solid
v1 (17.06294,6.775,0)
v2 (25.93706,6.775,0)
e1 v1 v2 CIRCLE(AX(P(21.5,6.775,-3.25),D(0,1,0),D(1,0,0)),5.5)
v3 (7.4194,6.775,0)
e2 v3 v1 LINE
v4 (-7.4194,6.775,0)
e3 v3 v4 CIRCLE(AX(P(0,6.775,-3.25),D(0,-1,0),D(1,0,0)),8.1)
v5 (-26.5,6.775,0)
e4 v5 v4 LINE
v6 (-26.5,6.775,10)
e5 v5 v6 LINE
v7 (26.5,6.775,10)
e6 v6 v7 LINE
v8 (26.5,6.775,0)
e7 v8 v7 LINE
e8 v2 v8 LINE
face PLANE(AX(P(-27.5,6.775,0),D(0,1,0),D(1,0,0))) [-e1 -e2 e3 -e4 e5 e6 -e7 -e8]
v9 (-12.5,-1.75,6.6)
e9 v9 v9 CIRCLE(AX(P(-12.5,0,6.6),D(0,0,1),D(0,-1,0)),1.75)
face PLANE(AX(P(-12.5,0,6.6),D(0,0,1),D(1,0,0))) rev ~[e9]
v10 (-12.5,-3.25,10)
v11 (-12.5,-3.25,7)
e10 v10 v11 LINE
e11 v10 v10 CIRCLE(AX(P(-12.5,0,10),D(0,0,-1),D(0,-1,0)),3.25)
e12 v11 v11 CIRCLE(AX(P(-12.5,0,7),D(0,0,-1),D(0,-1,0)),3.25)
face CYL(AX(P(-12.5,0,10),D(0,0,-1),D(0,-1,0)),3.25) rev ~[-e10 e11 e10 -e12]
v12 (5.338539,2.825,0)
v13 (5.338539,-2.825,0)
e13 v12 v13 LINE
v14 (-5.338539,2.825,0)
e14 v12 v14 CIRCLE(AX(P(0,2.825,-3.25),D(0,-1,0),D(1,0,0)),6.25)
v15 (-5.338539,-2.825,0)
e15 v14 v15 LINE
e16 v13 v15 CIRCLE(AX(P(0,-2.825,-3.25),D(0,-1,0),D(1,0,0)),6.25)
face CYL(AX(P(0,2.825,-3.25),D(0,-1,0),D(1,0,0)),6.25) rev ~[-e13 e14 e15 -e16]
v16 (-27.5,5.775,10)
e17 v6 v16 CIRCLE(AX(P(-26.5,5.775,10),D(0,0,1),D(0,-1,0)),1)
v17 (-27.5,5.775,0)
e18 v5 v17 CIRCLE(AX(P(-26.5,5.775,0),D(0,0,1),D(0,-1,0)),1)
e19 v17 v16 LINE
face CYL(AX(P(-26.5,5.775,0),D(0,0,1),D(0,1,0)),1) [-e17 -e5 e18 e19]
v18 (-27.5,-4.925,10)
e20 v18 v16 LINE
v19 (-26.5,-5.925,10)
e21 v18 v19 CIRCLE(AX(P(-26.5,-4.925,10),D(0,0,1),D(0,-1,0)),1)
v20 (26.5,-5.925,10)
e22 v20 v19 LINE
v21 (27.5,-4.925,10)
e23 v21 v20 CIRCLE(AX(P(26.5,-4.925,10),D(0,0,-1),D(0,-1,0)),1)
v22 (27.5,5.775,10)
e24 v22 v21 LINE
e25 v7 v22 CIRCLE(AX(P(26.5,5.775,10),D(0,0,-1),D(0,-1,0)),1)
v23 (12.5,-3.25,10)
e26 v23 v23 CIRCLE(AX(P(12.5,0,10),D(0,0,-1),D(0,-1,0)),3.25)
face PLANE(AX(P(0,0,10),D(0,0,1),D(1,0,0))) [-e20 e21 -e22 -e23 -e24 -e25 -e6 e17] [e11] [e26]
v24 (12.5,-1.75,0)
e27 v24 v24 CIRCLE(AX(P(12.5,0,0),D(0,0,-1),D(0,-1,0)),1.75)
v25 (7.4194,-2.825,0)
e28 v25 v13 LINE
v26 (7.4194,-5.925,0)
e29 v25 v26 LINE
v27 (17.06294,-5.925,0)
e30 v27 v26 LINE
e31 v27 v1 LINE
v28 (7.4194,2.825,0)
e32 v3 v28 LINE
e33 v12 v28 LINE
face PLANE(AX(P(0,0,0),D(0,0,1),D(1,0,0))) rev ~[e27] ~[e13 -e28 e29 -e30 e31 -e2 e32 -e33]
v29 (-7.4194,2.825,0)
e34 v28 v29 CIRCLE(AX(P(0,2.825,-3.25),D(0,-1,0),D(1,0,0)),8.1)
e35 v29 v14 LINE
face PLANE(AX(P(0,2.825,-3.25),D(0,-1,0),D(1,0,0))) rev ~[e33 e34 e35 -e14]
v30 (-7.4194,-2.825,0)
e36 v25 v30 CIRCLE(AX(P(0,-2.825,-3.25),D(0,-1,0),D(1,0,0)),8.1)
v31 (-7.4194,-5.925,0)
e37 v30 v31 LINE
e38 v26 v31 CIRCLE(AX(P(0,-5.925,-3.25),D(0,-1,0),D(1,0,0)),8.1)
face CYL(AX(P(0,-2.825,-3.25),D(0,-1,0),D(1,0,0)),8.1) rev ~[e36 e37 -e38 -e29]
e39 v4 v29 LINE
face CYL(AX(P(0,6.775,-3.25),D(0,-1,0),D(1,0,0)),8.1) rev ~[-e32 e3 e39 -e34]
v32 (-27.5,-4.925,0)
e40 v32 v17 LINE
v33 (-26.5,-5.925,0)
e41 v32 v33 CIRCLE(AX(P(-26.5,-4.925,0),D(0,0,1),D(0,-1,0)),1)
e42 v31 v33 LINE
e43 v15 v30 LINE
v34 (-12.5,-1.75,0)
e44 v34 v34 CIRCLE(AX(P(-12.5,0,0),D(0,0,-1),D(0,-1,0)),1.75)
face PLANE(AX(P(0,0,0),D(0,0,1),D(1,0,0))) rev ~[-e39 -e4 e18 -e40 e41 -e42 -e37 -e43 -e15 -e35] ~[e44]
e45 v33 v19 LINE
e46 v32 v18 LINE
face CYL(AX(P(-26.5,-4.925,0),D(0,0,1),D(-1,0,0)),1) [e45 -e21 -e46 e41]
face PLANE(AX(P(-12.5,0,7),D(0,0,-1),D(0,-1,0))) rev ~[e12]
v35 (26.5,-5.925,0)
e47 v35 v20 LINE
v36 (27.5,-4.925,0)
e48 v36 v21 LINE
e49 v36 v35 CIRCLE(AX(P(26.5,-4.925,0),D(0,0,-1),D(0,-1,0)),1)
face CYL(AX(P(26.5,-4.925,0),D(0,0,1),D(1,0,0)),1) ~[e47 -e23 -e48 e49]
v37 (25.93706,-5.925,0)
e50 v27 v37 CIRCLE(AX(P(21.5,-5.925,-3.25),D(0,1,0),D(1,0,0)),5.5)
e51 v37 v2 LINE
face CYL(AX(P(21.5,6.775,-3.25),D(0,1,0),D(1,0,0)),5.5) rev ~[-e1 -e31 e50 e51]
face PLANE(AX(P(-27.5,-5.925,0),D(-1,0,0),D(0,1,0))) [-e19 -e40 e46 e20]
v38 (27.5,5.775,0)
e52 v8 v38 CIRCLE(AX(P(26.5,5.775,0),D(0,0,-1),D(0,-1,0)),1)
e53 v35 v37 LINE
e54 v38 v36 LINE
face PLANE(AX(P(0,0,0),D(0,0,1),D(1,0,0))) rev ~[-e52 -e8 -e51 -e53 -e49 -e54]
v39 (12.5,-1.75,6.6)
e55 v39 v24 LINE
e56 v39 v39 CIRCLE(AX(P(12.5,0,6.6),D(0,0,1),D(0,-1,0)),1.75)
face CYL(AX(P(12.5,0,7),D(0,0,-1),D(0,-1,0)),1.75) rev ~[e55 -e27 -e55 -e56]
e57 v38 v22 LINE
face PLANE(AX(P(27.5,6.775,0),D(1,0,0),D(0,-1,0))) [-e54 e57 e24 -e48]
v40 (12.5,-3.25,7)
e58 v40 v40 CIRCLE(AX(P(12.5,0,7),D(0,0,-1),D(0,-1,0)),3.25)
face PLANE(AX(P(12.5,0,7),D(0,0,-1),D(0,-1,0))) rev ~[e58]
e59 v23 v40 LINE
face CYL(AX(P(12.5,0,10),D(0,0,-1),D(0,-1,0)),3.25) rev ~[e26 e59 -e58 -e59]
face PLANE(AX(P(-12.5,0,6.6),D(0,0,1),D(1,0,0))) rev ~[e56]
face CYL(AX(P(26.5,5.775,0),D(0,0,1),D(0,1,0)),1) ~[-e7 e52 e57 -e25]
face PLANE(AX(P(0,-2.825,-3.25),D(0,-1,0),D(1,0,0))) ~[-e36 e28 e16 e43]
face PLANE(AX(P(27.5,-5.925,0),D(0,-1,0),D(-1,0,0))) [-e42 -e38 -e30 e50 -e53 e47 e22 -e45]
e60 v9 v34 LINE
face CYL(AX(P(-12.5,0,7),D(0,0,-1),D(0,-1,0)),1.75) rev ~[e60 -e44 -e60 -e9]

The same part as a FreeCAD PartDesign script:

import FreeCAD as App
import Part
import Sketcher
from FreeCAD import Vector
Q = App.Units.Quantity


def edges_at(feature, points):
    """Names of the edges that pass closest to the given points."""
    edges = feature.Shape.Edges
    near = lambda p: min(range(len(edges)), key=lambda i: edges[i].distToShape(Part.Vertex(*p))[0])
    return sorted({f"Edge{near(p) + 1}" for p in points})


def add_polygon(sketch, points):
    """Adds a closed chain of lines whose ends are joined by coincident constraints."""
    first, n = sketch.GeometryCount, len(points)
    for a, b in zip(points, points[1:] + points[:1]):
        sketch.addGeometry(Part.LineSegment(App.Vector(*a, 0), App.Vector(*b, 0)), False)
    for i in range(n):
        sketch.addConstraint(Sketcher.Constraint("Coincident", first + i, 2, first + (i + 1) % n, 1))

doc = App.newDocument("Part")
body = doc.addObject("PartDesign::Body", "Body")

# Sketch on XY plane
sketch1 = body.newObject("Sketcher::SketchObject", "Sketch")
sketch1.AttachmentSupport = (doc.getObject("XY_Plane"), [""])
sketch1.MapMode = "FlatFace"
add_polygon(sketch1, [(28, 7), (-28, 7), (-28, -6), (28, -6)])  # lines 0-3
sketch1.addConstraint(Sketcher.Constraint("Horizontal", 0))
sketch1.addConstraint(Sketcher.Constraint("Vertical", 1))
sketch1.addConstraint(Sketcher.Constraint("Horizontal", 2))
sketch1.addConstraint(Sketcher.Constraint("Vertical", 3))
sketch1.addConstraint(Sketcher.Constraint("DistanceX", 0, 2, -1, 1, Q("27.5 mm")))
sketch1.addConstraint(Sketcher.Constraint("DistanceX", -1, 1, 2, 2, Q("27.5 mm")))
sketch1.addConstraint(Sketcher.Constraint("DistanceY", 1, 2, 1, 1, Q("12.7 mm")))
sketch1.addConstraint(Sketcher.Constraint("DistanceY", -1, 1, 0, 2, Q("6.775 mm")))
pad1 = body.newObject("PartDesign::Pad", "Pad")
pad1.Profile = sketch1
pad1.Length = 10

# Sketch on XY plane
sketch2 = body.newObject("Sketcher::SketchObject", "Sketch001")
sketch2.AttachmentSupport = (doc.getObject("XY_Plane"), [""])
sketch2.MapMode = "FlatFace"
sketch2.AttachmentOffset = App.Placement(Vector(0, 0, -3.25), App.Rotation())
add_polygon(sketch2, [(0, -5.9), (0, 6.8), (8.1, 6.8), (8.1, 2.8), (6.2, 2.8), (6.2, -2.8), (8.1, -2.8), (8.1, -5.9)])  # lines 0-7
sketch2.addConstraint(Sketcher.Constraint("Vertical", 0))
sketch2.addConstraint(Sketcher.Constraint("Horizontal", 1))
sketch2.addConstraint(Sketcher.Constraint("Vertical", 2))
sketch2.addConstraint(Sketcher.Constraint("Horizontal", 3))
sketch2.addConstraint(Sketcher.Constraint("Vertical", 4))
sketch2.addConstraint(Sketcher.Constraint("Horizontal", 5))
sketch2.addConstraint(Sketcher.Constraint("Vertical", 6))
sketch2.addConstraint(Sketcher.Constraint("Horizontal", 7))
sketch2.addConstraint(Sketcher.Constraint("Symmetric", 2, 2, 5, 2, -1))
sketch2.addConstraint(Sketcher.Constraint("PointOnObject", 0, 2, -2))
sketch2.addConstraint(Sketcher.Constraint("DistanceX", 1, 1, 1, 2, Q("8.1 mm")))
sketch2.addConstraint(Sketcher.Constraint("DistanceY", 6, 2, 6, 1, Q("3.1 mm")))
sketch2.addConstraint(Sketcher.Constraint("DistanceY", 2, 2, 2, 1, Q("3.95 mm")))
sketch2.addConstraint(Sketcher.Constraint("DistanceX", -1, 1, 3, 2, Q("6.25 mm")))
sketch2.addConstraint(Sketcher.Constraint("DistanceY", 0, 1, 0, 2, Q("12.7 mm")))
groove = body.newObject("PartDesign::Groove", "Groove")
groove.Profile = sketch2
groove.ReferenceAxis = (sketch2, ["V_Axis"])
groove.Angle = 180
groove.Reversed = True

# Sketch on XY plane
sketch3 = body.newObject("Sketcher::SketchObject", "Sketch002")
sketch3.AttachmentSupport = (doc.getObject("XY_Plane"), [""])
sketch3.MapMode = "FlatFace"
sketch3.AttachmentOffset = App.Placement(Vector(0, 0, 10), App.Rotation())
sketch3.addGeometry(Part.Circle(Vector(-12.5, 0, 0), Vector(0, 0, 1), 1.8), False)
sketch3.addGeometry(Part.Circle(Vector(12.5, 0, 0), Vector(0, 0, 1), 1.8), False)
sketch3.addConstraint(Sketcher.Constraint("Equal", 0, 1))
sketch3.addConstraint(Sketcher.Constraint("Symmetric", 0, 3, 1, 3, -1, 1))
sketch3.addConstraint(Sketcher.Constraint("PointOnObject", 0, 3, -1))
sketch3.addConstraint(Sketcher.Constraint("Diameter", 0, Q("3.5 mm")))
sketch3.addConstraint(Sketcher.Constraint("DistanceX", 0, 3, 1, 3, Q("25 mm")))
doc.recompute()
hole = body.newObject("PartDesign::Hole", "Hole")
hole.Profile = sketch3
hole.ThreadType = "None"
hole.Diameter = 3.5
hole.DepthType = "ThroughAll"
hole.HoleCutType = "Counterbore"
hole.HoleCutDiameter = 6.5
hole.HoleCutDepth = 3

# Sketch on XZ plane
sketch4 = body.newObject("Sketcher::SketchObject", "Sketch003")
sketch4.AttachmentSupport = (doc.getObject("XZ_Plane"), [""])
sketch4.MapMode = "FlatFace"
sketch4.AttachmentOffset = App.Placement(Vector(0, 0, -6.775), App.Rotation())
sketch4.addGeometry(Part.Circle(Vector(22, -3, 0), Vector(0, 0, 1), 6), False)
sketch4.addConstraint(Sketcher.Constraint("Diameter", 0, Q("11 mm")))
sketch4.addConstraint(Sketcher.Constraint("DistanceX", -1, 1, 0, 3, Q("21.5 mm")))
sketch4.addConstraint(Sketcher.Constraint("DistanceY", 0, 3, -1, 1, Q("3.25 mm")))
pocket1 = body.newObject("PartDesign::Pocket", "Pocket")
pocket1.Profile = sketch4
pocket1.Type = "ThroughAll"
pocket1.Reversed = True

# Sketch on XY plane
sketch5 = body.newObject("Sketcher::SketchObject", "Sketch004")
sketch5.AttachmentSupport = (doc.getObject("XY_Plane"), [""])
sketch5.MapMode = "FlatFace"
sketch5.AttachmentOffset = App.Placement(Vector(0, 0, 7), App.Rotation())
sketch5.addGeometry(Part.Circle(Vector(-12.5, 0, 0), Vector(0, 0, 1), 1.8), False)
sketch5.addGeometry(Part.Circle(Vector(12.5, 0, 0), Vector(0, 0, 1), 1.8), False)
sketch5.addConstraint(Sketcher.Constraint("Equal", 0, 1))
sketch5.addConstraint(Sketcher.Constraint("Symmetric", 0, 3, 1, 3, -1, 1))
sketch5.addConstraint(Sketcher.Constraint("PointOnObject", 0, 3, -1))
sketch5.addConstraint(Sketcher.Constraint("Diameter", 0, Q("3.5 mm")))
sketch5.addConstraint(Sketcher.Constraint("DistanceX", 0, 3, 1, 3, Q("25 mm")))
pad2 = body.newObject("PartDesign::Pad", "Pad001")
pad2.Profile = sketch5
pad2.Length = 0.4
pad2.Reversed = True
doc.recompute()

fillet = body.newObject("PartDesign::Fillet", "Fillet")
fillet.Base = (pad2, edges_at(pad2, [
    (-27.5, 6.775, 5),
    (-27.5, -5.925, 5),
    (27.5, 6.775, 5),
    (27.5, -5.925, 5),
]))
fillet.Radius = 1

doc.recompute()
